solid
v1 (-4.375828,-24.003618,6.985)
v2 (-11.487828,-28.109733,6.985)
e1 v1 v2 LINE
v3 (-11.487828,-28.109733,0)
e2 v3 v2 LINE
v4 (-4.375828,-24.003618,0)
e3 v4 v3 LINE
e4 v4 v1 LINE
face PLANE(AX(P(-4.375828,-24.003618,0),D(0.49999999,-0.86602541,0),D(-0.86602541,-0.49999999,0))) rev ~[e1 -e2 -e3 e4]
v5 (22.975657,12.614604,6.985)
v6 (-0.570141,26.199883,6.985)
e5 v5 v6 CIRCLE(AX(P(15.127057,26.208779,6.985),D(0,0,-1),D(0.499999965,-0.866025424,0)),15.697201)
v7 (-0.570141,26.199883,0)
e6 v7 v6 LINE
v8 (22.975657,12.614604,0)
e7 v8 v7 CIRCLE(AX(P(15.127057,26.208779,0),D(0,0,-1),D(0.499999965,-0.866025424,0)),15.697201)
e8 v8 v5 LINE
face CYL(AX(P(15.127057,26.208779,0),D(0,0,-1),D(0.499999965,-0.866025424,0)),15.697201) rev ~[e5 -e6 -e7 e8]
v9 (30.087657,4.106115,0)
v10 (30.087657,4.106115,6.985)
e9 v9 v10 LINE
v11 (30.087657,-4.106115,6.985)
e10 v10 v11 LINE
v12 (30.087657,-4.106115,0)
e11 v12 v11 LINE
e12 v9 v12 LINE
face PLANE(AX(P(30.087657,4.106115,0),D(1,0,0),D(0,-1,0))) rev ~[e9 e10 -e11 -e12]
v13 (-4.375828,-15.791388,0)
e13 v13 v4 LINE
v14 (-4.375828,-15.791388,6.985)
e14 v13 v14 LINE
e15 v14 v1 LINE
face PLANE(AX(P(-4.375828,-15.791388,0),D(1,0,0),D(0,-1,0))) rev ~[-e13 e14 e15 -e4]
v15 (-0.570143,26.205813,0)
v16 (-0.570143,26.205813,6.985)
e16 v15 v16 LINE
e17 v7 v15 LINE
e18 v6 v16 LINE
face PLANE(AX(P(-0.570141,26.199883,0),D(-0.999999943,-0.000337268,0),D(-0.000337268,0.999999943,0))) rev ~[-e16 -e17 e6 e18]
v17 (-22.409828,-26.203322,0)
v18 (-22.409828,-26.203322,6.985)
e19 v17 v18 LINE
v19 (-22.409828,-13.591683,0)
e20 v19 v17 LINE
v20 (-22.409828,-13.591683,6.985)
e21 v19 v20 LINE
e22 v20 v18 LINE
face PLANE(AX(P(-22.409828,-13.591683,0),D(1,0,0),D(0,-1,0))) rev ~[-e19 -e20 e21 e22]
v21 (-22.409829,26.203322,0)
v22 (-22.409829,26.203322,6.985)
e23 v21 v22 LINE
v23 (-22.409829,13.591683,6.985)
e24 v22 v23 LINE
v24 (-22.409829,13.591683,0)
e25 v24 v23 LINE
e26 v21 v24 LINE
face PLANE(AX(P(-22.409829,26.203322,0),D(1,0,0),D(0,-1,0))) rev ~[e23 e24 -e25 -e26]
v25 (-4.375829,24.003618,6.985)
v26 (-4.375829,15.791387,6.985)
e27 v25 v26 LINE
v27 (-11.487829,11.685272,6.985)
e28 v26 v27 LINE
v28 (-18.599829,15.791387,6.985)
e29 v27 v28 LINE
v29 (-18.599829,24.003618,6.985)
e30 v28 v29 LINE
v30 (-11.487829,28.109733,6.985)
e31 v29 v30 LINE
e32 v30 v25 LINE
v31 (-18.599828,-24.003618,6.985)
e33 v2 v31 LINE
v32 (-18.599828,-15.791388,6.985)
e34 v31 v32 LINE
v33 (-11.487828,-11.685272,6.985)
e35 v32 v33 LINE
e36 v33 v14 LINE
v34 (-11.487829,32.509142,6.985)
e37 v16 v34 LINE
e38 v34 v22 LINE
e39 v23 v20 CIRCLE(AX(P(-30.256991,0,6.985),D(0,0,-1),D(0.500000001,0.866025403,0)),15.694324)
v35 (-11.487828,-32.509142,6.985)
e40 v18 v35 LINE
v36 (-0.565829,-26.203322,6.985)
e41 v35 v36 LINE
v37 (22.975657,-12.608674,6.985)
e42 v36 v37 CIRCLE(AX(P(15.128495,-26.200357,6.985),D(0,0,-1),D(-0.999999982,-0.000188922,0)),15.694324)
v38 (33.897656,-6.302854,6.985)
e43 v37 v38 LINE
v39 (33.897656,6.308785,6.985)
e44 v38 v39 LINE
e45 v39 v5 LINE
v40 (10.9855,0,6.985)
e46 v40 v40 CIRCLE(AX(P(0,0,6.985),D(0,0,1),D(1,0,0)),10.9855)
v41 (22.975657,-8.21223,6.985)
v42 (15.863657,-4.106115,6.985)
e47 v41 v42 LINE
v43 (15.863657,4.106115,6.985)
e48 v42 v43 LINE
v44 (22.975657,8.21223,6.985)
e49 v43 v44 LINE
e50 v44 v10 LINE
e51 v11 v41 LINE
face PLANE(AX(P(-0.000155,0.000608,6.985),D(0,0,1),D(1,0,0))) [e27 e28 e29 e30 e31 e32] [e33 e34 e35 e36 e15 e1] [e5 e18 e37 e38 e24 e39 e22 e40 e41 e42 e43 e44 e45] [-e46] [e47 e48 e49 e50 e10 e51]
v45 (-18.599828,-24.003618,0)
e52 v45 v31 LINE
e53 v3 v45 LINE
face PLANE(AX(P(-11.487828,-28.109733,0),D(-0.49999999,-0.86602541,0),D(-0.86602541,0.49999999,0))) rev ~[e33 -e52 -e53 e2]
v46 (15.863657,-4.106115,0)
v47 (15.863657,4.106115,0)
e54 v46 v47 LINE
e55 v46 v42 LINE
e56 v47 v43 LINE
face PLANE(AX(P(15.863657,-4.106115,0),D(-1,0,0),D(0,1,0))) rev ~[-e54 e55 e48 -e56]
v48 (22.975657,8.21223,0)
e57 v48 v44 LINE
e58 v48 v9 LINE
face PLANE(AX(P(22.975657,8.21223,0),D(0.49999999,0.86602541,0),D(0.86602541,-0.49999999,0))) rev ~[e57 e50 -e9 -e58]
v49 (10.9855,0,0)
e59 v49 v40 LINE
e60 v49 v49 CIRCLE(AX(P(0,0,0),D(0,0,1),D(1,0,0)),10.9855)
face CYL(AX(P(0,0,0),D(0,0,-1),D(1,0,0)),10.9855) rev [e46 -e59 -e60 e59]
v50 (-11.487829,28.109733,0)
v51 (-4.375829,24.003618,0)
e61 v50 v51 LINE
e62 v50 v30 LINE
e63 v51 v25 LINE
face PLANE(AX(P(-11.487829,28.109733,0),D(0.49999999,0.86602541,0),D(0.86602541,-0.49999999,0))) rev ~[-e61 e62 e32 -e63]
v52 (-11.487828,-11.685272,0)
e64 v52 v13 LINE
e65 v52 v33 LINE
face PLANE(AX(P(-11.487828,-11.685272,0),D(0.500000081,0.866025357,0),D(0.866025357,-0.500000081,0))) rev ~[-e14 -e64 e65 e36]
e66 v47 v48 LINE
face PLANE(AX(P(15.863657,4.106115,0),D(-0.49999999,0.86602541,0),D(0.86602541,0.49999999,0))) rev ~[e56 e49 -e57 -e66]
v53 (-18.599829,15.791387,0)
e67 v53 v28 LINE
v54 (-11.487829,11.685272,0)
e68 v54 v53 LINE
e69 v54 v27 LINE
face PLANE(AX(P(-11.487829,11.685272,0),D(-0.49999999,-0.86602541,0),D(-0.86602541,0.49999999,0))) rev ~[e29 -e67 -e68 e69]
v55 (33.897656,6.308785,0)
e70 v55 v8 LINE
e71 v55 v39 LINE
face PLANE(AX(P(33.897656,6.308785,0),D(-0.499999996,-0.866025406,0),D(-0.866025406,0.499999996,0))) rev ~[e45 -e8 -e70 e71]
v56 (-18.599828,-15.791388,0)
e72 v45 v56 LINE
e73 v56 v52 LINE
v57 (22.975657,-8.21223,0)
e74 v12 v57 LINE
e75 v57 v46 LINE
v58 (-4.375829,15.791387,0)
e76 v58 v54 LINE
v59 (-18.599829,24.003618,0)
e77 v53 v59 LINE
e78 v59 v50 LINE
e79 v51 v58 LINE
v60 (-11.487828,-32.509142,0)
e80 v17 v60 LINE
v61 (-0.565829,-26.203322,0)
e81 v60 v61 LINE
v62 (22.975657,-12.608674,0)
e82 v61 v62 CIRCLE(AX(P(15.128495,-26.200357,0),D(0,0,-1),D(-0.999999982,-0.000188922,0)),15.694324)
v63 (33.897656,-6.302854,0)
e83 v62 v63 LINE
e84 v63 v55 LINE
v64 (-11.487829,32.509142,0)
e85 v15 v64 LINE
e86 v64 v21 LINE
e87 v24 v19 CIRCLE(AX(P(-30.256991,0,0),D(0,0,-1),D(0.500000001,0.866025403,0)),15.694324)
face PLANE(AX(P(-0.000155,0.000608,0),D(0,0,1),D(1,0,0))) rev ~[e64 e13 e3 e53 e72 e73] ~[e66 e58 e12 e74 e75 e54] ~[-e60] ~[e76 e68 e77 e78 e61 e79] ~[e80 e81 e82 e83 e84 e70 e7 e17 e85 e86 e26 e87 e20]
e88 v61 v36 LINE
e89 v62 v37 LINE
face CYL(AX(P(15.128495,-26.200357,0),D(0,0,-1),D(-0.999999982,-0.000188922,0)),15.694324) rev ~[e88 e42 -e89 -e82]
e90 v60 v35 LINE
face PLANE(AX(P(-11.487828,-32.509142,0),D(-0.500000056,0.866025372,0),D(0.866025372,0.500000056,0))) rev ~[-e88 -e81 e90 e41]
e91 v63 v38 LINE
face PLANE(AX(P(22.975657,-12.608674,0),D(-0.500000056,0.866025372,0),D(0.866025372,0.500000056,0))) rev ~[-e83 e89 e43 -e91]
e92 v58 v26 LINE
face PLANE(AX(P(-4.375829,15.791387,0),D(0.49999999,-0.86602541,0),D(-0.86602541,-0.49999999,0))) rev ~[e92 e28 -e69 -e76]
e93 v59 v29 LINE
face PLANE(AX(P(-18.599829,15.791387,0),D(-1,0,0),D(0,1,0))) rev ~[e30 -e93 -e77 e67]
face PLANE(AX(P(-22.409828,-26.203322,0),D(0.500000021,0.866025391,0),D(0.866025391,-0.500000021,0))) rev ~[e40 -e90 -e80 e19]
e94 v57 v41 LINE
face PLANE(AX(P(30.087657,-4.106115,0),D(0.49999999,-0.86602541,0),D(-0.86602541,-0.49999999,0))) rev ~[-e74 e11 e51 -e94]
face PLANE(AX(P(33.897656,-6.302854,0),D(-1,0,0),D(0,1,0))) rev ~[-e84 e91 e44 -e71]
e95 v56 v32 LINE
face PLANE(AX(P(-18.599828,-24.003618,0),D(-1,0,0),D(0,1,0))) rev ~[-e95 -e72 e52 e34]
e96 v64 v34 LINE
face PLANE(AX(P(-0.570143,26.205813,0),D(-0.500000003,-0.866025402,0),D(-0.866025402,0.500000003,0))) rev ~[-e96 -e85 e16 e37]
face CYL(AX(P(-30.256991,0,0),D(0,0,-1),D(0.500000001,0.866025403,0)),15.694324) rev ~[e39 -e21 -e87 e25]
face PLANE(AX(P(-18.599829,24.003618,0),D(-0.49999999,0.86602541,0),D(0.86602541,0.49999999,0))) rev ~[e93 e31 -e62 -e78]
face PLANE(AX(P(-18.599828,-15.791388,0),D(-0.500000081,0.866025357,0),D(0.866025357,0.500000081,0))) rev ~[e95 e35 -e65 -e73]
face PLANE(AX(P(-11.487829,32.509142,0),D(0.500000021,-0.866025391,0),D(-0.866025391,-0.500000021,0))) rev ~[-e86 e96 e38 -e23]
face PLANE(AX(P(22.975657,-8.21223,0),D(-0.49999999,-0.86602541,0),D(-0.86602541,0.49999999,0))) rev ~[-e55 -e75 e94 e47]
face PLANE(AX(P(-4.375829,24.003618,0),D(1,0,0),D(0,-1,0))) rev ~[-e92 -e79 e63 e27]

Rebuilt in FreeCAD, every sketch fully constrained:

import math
import FreeCAD as App
import Part
import Sketcher

V = App.Vector
Q = App.Units.Quantity

doc = App.newDocument("Part")
params = doc.addObject("Spreadsheet::Sheet", "Params")
for row, (alias, value) in enumerate([
    ("sketch1_diameter", "0.865 in"),
    ("sketch1_radius", "0.618 in"),
    ("pad1_length", "0.275 in"),
], start=1):
    params.set(f"A{row}", alias)
    params.set(f"B{row}", "=" + value)
    params.setAlias(f"B{row}", alias)

body = doc.addObject("PartDesign::Body", "Body")

# Sketch on XY plane
sketch1 = doc.addObject("Sketcher::SketchObject", "Sketch")
body.addObject(sketch1)
sketch1.AttachmentSupport = (doc.XY_Plane, [""])
sketch1.MapMode = "FlatFace"
sketch1.addGeometry(Part.LineSegment(V(-0.570141, 26.199883, 0), V(-0.570143, 26.205813, 0)), False)
sketch1.addGeometry(Part.LineSegment(V(-0.570143, 26.205813, 0), V(-11.487829, 32.509142, 0)), False)
sketch1.addGeometry(Part.LineSegment(V(-11.487829, 32.509142, 0), V(-22.409829, 26.203322, 0)), False)
sketch1.addGeometry(Part.LineSegment(V(-22.409829, 26.203322, 0), V(-22.409829, 13.591683, 0)), False)
sketch1.addGeometry(Part.ArcOfCircle(Part.Circle(V(-30.256991, 0, 0), V(0, 0, 1), 15.694324), math.radians(-59.999996), math.radians(60)), False)
sketch1.addGeometry(Part.LineSegment(V(-22.409828, -13.591683, 0), V(-22.409828, -26.203322, 0)), False)
sketch1.addGeometry(Part.LineSegment(V(-22.409828, -26.203322, 0), V(-11.487828, -32.509142, 0)), False)
sketch1.addGeometry(Part.LineSegment(V(-11.487828, -32.509142, 0), V(-0.565829, -26.203322, 0)), False)
sketch1.addGeometry(Part.ArcOfCircle(Part.Circle(V(15.128495, -26.200357, 0), V(0, 0, 1), 15.694324), math.radians(59.999998), math.radians(180.010824)), False)
sketch1.addGeometry(Part.LineSegment(V(22.975657, -12.608674, 0), V(33.897656, -6.302854, 0)), False)
sketch1.addGeometry(Part.LineSegment(V(33.897656, -6.302854, 0), V(33.897656, 6.308785, 0)), False)
sketch1.addGeometry(Part.LineSegment(V(33.897656, 6.308785, 0), V(22.975657, 12.614604, 0)), False)
sketch1.addGeometry(Part.ArcOfCircle(Part.Circle(V(15.127057, 26.208779, 0), V(0, 0, 1), 15.697201), math.radians(-179.967529), math.radians(-60.000002)), False)
sketch1.addGeometry(Part.LineSegment(V(-11.487828, -28.109733, 0), V(-18.599828, -24.003618, 0)), False)
sketch1.addGeometry(Part.LineSegment(V(-18.599828, -24.003618, 0), V(-18.599828, -15.791388, 0)), False)
sketch1.addGeometry(Part.LineSegment(V(-18.599828, -15.791388, 0), V(-11.487828, -11.685272, 0)), False)
sketch1.addGeometry(Part.LineSegment(V(-11.487828, -11.685272, 0), V(-4.375828, -15.791388, 0)), False)
sketch1.addGeometry(Part.LineSegment(V(-4.375828, -15.791388, 0), V(-4.375828, -24.003618, 0)), False)
sketch1.addGeometry(Part.LineSegment(V(-4.375828, -24.003618, 0), V(-11.487828, -28.109733, 0)), False)
sketch1.addGeometry(Part.Circle(V(0, 0, 0), V(0, 0, 1), 10.9855), False)
sketch1.addGeometry(Part.LineSegment(V(-18.599829, 24.003618, 0), V(-11.487829, 28.109733, 0)), False)
sketch1.addGeometry(Part.LineSegment(V(-11.487829, 28.109733, 0), V(-4.375829, 24.003618, 0)), False)
sketch1.addGeometry(Part.LineSegment(V(-4.375829, 24.003618, 0), V(-4.375829, 15.791387, 0)), False)
sketch1.addGeometry(Part.LineSegment(V(-4.375829, 15.791387, 0), V(-11.487829, 11.685272, 0)), False)
sketch1.addGeometry(Part.LineSegment(V(-11.487829, 11.685272, 0), V(-18.599829, 15.791387, 0)), False)
sketch1.addGeometry(Part.LineSegment(V(-18.599829, 15.791387, 0), V(-18.599829, 24.003618, 0)), False)
sketch1.addGeometry(Part.LineSegment(V(30.087657, -4.106115, 0), V(22.975657, -8.21223, 0)), False)
sketch1.addGeometry(Part.LineSegment(V(22.975657, -8.21223, 0), V(15.863657, -4.106115, 0)), False)
sketch1.addGeometry(Part.LineSegment(V(15.863657, -4.106115, 0), V(15.863657, 4.106115, 0)), False)
sketch1.addGeometry(Part.LineSegment(V(15.863657, 4.106115, 0), V(22.975657, 8.21223, 0)), False)
sketch1.addGeometry(Part.LineSegment(V(22.975657, 8.21223, 0), V(30.087657, 4.106115, 0)), False)
sketch1.addGeometry(Part.LineSegment(V(30.087657, 4.106115, 0), V(30.087657, -4.106115, 0)), False)
sketch1.addConstraint(Sketcher.Constraint("Coincident", 0, 2, 1, 1))
sketch1.addConstraint(Sketcher.Constraint("Coincident", 1, 2, 2, 1))
sketch1.addConstraint(Sketcher.Constraint("Coincident", 2, 2, 3, 1))
sketch1.addConstraint(Sketcher.Constraint("Coincident", 3, 2, 4, 2))
sketch1.addConstraint(Sketcher.Constraint("Coincident", 4, 1, 5, 1))
sketch1.addConstraint(Sketcher.Constraint("Coincident", 5, 2, 6, 1))
sketch1.addConstraint(Sketcher.Constraint("Coincident", 6, 2, 7, 1))
sketch1.addConstraint(Sketcher.Constraint("Coincident", 7, 2, 8, 2))
sketch1.addConstraint(Sketcher.Constraint("Coincident", 8, 1, 9, 1))
sketch1.addConstraint(Sketcher.Constraint("Coincident", 9, 2, 10, 1))
sketch1.addConstraint(Sketcher.Constraint("Coincident", 10, 2, 11, 1))
sketch1.addConstraint(Sketcher.Constraint("Coincident", 11, 2, 12, 2))
sketch1.addConstraint(Sketcher.Constraint("Coincident", 12, 1, 0, 1))
sketch1.addConstraint(Sketcher.Constraint("Coincident", 13, 2, 14, 1))
sketch1.addConstraint(Sketcher.Constraint("Coincident", 14, 2, 15, 1))
sketch1.addConstraint(Sketcher.Constraint("Coincident", 15, 2, 16, 1))
sketch1.addConstraint(Sketcher.Constraint("Coincident", 16, 2, 17, 1))
sketch1.addConstraint(Sketcher.Constraint("Coincident", 17, 2, 18, 1))
sketch1.addConstraint(Sketcher.Constraint("Coincident", 18, 2, 13, 1))
sketch1.addConstraint(Sketcher.Constraint("Coincident", 20, 2, 21, 1))
sketch1.addConstraint(Sketcher.Constraint("Coincident", 21, 2, 22, 1))
sketch1.addConstraint(Sketcher.Constraint("Coincident", 22, 2, 23, 1))
sketch1.addConstraint(Sketcher.Constraint("Coincident", 23, 2, 24, 1))
sketch1.addConstraint(Sketcher.Constraint("Coincident", 24, 2, 25, 1))
sketch1.addConstraint(Sketcher.Constraint("Coincident", 25, 2, 20, 1))
sketch1.addConstraint(Sketcher.Constraint("Coincident", 26, 2, 27, 1))
sketch1.addConstraint(Sketcher.Constraint("Coincident", 27, 2, 28, 1))
sketch1.addConstraint(Sketcher.Constraint("Coincident", 28, 2, 29, 1))
sketch1.addConstraint(Sketcher.Constraint("Coincident", 29, 2, 30, 1))
sketch1.addConstraint(Sketcher.Constraint("Coincident", 30, 2, 31, 1))
sketch1.addConstraint(Sketcher.Constraint("Coincident", 31, 2, 26, 1))
sketch1.addConstraint(Sketcher.Constraint("Vertical", 0))
sketch1.addConstraint(Sketcher.Constraint("Vertical", 3))
sketch1.addConstraint(Sketcher.Constraint("Vertical", 5))
sketch1.addConstraint(Sketcher.Constraint("Vertical", 10))
sketch1.addConstraint(Sketcher.Constraint("Vertical", 14))
sketch1.addConstraint(Sketcher.Constraint("Vertical", 17))
sketch1.addConstraint(Sketcher.Constraint("Vertical", 22))
sketch1.addConstraint(Sketcher.Constraint("Vertical", 25))
sketch1.addConstraint(Sketcher.Constraint("Vertical", 28))
sketch1.addConstraint(Sketcher.Constraint("Vertical", 31))
sketch1.addConstraint(Sketcher.Constraint("Coincident", 19, 3, -1, 1))
sketch1.addConstraint(Sketcher.Constraint("Equal", 4, 8))
sketch1.addConstraint(Sketcher.Constraint("Symmetric", 3, 2, 4, 1, -1))
sketch1.addConstraint(Sketcher.Constraint("Symmetric", 1, 2, 6, 2, -1))
sketch1.addConstraint(Sketcher.Constraint("Symmetric", 18, 2, 20, 2, -1))
sketch1.addConstraint(Sketcher.Constraint("Symmetric", 17, 2, 21, 2, -1))
sketch1.addConstraint(Sketcher.Constraint("Symmetric", 15, 2, 23, 2, -1))
sketch1.addConstraint(Sketcher.Constraint("Symmetric", 14, 2, 24, 2, -1))
sketch1.addConstraint(Sketcher.Constraint("Symmetric", 26, 2, 29, 2, -1))
sketch1.addConstraint(Sketcher.Constraint("Parallel", 1, 6))
sketch1.addConstraint(Sketcher.Constraint("Parallel", 2, 7))
sketch1.addConstraint(Sketcher.Constraint("Parallel", 7, 9))
sketch1.addConstraint(Sketcher.Constraint("Parallel", 6, 11))
sketch1.addConstraint(Sketcher.Constraint("Parallel", 11, 13))
sketch1.addConstraint(Sketcher.Constraint("Parallel", 9, 15))
sketch1.addConstraint(Sketcher.Constraint("Parallel", 13, 16))
sketch1.addConstraint(Sketcher.Constraint("Parallel", 15, 18))
sketch1.addConstraint(Sketcher.Constraint("Parallel", 18, 20))
sketch1.addConstraint(Sketcher.Constraint("Parallel", 16, 21))
sketch1.addConstraint(Sketcher.Constraint("Parallel", 20, 23))
sketch1.addConstraint(Sketcher.Constraint("Parallel", 23, 26))
sketch1.addConstraint(Sketcher.Constraint("Parallel", 24, 27))
sketch1.addConstraint(Sketcher.Constraint("Parallel", 26, 29))
sketch1.addConstraint(Sketcher.Constraint("Parallel", 27, 30))
sketch1.addConstraint(Sketcher.Constraint("Horizontal", 5, 2, 7, 2))
sketch1.addConstraint(Sketcher.Constraint("Horizontal", 14, 2, 16, 2))
sketch1.addConstraint(Sketcher.Constraint("Horizontal", 13, 2, 17, 2))
sketch1.addConstraint(Sketcher.Constraint("Horizontal", 28, 2, 30, 2))
sketch1.addConstraint(Sketcher.Constraint("Vertical", 8, 1, 11, 2))
sketch1.addConstraint(Sketcher.Constraint("Vertical", 6, 2, 15, 2))
sketch1.addConstraint(Sketcher.Constraint("Vertical", 11, 2, 26, 2))
sketch1.addConstraint(Sketcher.Constraint("Equal", 5, 10))
sketch1.addConstraint(Sketcher.Constraint("Equal", 25, 28))
sketch1.addConstraint(Sketcher.Constraint("Equal", 7, 9))
sketch1.addConstraint(Sketcher.Constraint("Equal", 24, 26))
sketch1.addConstraint(Sketcher.Constraint("Diameter", 19, Q("0.865 in")))
sketch1.addConstraint(Sketcher.Constraint("Angle", 1, Q("150 deg")))
sketch1.addConstraint(Sketcher.Constraint("Radius", 12, Q("0.618 in")))
sketch1.addConstraint(Sketcher.Constraint("DistanceX", 2, 2, 1, 2, Q("0.43 in")))
sketch1.addConstraint(Sketcher.Constraint("DistanceX", 5, 2, 13, 2, Q("0.15 in")))
sketch1.addConstraint(Sketcher.Constraint("DistanceX", 12, 3, 8, 1, Q("0.309 in")))
sketch1.addConstraint(Sketcher.Constraint("Radius", 4, 15.694324))
sketch1.addConstraint(Sketcher.Constraint("DistanceY", 0, 1, 0, 2, 0.00593))
sketch1.addConstraint(Sketcher.Constraint("DistanceY", 3, 2, 3, 1, 12.611639))
sketch1.addConstraint(Sketcher.Constraint("DistanceY", 14, 1, 14, 2, 8.21223))
sketch1.addConstraint(Sketcher.Constraint("DistanceY", 8, 3, 1, 2, 58.709499))
sketch1.addConstraint(Sketcher.Constraint("DistanceY", 3, 2, 12, 1, 12.6082))
sketch1.addConstraint(Sketcher.Constraint("DistanceY", 31, 2, 10, 2, 10.4149))
sketch1.addConstraint(Sketcher.Constraint("DistanceX", 4, 3, -1, 1, 30.256991))
sketch1.addConstraint(Sketcher.Constraint("DistanceY", 4, 1, 15, 2, 1.906411))
sketch1.setExpression("Constraints[76]", "Params.sketch1_diameter")
sketch1.setExpression("Constraints[78]", "Params.sketch1_radius")
pad1 = doc.addObject("PartDesign::Pad", "Pad")
body.addObject(pad1)
pad1.Profile = sketch1
pad1.setExpression("Length", "Params.pad1_length")

doc.recompute()
